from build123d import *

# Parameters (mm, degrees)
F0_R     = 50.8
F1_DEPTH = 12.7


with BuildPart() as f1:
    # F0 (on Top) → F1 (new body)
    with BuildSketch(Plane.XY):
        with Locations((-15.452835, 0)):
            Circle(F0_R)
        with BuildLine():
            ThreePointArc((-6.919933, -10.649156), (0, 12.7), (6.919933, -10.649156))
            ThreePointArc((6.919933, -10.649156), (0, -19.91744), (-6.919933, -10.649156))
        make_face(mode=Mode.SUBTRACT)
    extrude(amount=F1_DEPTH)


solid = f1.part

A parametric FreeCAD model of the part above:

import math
import FreeCAD as App
import Part
import Sketcher
Q = App.Units.Quantity

doc = App.newDocument("Part")
body = doc.addObject("PartDesign::Body", "Body")

sketch1 = doc.addObject("Sketcher::SketchObject", "Sketch")
body.addObject(sketch1)
sketch1.AttachmentSupport = (doc.XY_Plane, [""])
sketch1.MapMode = "FlatFace"
sketch1.addGeometry([
    Part.Circle(App.Vector(-15, 0, 0), App.Vector(0, 0, 1), 51),
    Part.ArcOfCircle(Part.Circle(App.Vector(0, -13, 0), App.Vector(0, 0, 1), 7), math.radians(163), math.radians(377)),
    Part.ArcOfCircle(Part.Circle(App.Vector(0, 0, 0), App.Vector(0, 0, 1), 13), math.radians(-57), math.radians(237)),
], False)
sketch1.addConstraint([
    Sketcher.Constraint("Coincident", 1, 1, 2, 2),
    Sketcher.Constraint("Coincident", 2, 1, 1, 2),
    Sketcher.Constraint("Coincident", 2, 3, -1, 1),
    Sketcher.Constraint("PointOnObject", 0, 3, -1),
    Sketcher.Constraint("PointOnObject", 1, 3, -2),
    Sketcher.Constraint("Diameter", 0, Q("4 in")),
    Sketcher.Constraint("Radius", 2, Q("0.5 in")),
    Sketcher.Constraint("DistanceY", 1, 3, -1, 1, Q("0.5 in")),
    Sketcher.Constraint("Radius", 1, 7.21744),
    Sketcher.Constraint("DistanceX", 0, 3, -1, 1, 15.452835),
])
pad1 = doc.addObject("PartDesign::Pad", "Pad")
body.addObject(pad1)
pad1.Profile = sketch1
pad1.Length = Q("0.5 in")

doc.recompute()
